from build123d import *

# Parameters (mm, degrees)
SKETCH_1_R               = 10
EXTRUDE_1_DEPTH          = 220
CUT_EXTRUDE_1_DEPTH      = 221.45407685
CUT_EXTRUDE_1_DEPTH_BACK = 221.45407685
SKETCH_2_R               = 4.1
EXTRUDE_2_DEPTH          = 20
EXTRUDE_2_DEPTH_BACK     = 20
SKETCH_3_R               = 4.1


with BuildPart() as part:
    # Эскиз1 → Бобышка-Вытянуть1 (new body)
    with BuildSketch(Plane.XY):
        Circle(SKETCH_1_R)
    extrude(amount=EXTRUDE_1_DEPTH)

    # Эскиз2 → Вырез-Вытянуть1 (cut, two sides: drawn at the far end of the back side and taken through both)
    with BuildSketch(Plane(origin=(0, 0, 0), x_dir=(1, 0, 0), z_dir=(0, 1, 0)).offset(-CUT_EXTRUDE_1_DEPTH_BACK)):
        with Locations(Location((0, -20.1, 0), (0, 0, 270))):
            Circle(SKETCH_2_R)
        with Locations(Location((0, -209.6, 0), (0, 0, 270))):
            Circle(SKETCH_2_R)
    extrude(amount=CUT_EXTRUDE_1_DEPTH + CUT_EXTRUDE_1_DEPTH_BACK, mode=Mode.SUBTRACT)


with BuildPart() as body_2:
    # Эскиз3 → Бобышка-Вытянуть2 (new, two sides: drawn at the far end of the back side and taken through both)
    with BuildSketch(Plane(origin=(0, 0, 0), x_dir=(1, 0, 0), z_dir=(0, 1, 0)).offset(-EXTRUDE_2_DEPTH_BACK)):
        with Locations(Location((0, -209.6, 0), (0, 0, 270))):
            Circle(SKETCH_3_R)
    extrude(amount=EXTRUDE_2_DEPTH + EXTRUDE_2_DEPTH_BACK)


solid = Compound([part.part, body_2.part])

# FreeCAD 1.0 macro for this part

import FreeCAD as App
import Part
import Sketcher
from FreeCAD import Vector
Q = App.Units.Quantity

doc = App.newDocument("Part")
body = doc.addObject("PartDesign::Body", "Body")

# Sketch on XY plane
sketch1 = body.newObject("Sketcher::SketchObject", "Sketch")
sketch1.AttachmentSupport = (doc.getObject("XY_Plane"), [""])
sketch1.MapMode = "FlatFace"
sketch1.addGeometry(Part.Circle(Vector(0, 0, 0), Vector(0, 0, 1), 10), False)
sketch1.addConstraint(Sketcher.Constraint("Coincident", 0, 3, -1, 1))
sketch1.addConstraint(Sketcher.Constraint("Diameter", 0, Q("20 mm")))
pad1 = body.newObject("PartDesign::Pad", "Pad")
pad1.Profile = sketch1
pad1.Length = 220

# Sketch on XZ plane
sketch2 = body.newObject("Sketcher::SketchObject", "Sketch001")
sketch2.AttachmentSupport = (doc.getObject("XZ_Plane"), [""])
sketch2.MapMode = "FlatFace"
sketch2.addGeometry(Part.Circle(Vector(0, 20.1, 0), Vector(0, 0, 1), 4.1), False)
sketch2.addGeometry(Part.Circle(Vector(0, 209.6, 0), Vector(0, 0, 1), 4.1), False)
sketch2.addConstraint(Sketcher.Constraint("Equal", 0, 1))
sketch2.addConstraint(Sketcher.Constraint("PointOnObject", 0, 3, -2))
sketch2.addConstraint(Sketcher.Constraint("PointOnObject", 1, 3, -2))
sketch2.addConstraint(Sketcher.Constraint("Diameter", 0, Q("8.2 mm")))
sketch2.addConstraint(Sketcher.Constraint("DistanceY", -1, 1, 0, 3, Q("20.1 mm")))
sketch2.addConstraint(Sketcher.Constraint("DistanceY", -1, 1, 1, 3, Q("209.6 mm")))
pocket1 = body.newObject("PartDesign::Pocket", "Pocket")
pocket1.Profile = sketch2
pocket1.Type = "ThroughAll"
pocket1.Midplane = True
body2 = doc.addObject("PartDesign::Body", "Body001")

# Sketch on XZ plane
sketch3 = body2.newObject("Sketcher::SketchObject", "Sketch002")
sketch3.AttachmentSupport = (doc.getObject("XZ_Plane001"), [""])
sketch3.MapMode = "FlatFace"
sketch3.addGeometry(Part.Circle(Vector(0, 209.6, 0), Vector(0, 0, 1), 4.1), False)
sketch3.addConstraint(Sketcher.Constraint("PointOnObject", 0, 3, -2))
sketch3.addConstraint(Sketcher.Constraint("Diameter", 0, Q("8.2 mm")))
sketch3.addConstraint(Sketcher.Constraint("DistanceY", -1, 1, 0, 3, Q("209.6 mm")))
pad2 = body2.newObject("PartDesign::Pad", "Pad001")
pad2.Profile = sketch3
pad2.Type = "TwoLengths"
pad2.Length = 20
pad2.Length2 = 20
pad2.Reversed = True

doc.recompute()
